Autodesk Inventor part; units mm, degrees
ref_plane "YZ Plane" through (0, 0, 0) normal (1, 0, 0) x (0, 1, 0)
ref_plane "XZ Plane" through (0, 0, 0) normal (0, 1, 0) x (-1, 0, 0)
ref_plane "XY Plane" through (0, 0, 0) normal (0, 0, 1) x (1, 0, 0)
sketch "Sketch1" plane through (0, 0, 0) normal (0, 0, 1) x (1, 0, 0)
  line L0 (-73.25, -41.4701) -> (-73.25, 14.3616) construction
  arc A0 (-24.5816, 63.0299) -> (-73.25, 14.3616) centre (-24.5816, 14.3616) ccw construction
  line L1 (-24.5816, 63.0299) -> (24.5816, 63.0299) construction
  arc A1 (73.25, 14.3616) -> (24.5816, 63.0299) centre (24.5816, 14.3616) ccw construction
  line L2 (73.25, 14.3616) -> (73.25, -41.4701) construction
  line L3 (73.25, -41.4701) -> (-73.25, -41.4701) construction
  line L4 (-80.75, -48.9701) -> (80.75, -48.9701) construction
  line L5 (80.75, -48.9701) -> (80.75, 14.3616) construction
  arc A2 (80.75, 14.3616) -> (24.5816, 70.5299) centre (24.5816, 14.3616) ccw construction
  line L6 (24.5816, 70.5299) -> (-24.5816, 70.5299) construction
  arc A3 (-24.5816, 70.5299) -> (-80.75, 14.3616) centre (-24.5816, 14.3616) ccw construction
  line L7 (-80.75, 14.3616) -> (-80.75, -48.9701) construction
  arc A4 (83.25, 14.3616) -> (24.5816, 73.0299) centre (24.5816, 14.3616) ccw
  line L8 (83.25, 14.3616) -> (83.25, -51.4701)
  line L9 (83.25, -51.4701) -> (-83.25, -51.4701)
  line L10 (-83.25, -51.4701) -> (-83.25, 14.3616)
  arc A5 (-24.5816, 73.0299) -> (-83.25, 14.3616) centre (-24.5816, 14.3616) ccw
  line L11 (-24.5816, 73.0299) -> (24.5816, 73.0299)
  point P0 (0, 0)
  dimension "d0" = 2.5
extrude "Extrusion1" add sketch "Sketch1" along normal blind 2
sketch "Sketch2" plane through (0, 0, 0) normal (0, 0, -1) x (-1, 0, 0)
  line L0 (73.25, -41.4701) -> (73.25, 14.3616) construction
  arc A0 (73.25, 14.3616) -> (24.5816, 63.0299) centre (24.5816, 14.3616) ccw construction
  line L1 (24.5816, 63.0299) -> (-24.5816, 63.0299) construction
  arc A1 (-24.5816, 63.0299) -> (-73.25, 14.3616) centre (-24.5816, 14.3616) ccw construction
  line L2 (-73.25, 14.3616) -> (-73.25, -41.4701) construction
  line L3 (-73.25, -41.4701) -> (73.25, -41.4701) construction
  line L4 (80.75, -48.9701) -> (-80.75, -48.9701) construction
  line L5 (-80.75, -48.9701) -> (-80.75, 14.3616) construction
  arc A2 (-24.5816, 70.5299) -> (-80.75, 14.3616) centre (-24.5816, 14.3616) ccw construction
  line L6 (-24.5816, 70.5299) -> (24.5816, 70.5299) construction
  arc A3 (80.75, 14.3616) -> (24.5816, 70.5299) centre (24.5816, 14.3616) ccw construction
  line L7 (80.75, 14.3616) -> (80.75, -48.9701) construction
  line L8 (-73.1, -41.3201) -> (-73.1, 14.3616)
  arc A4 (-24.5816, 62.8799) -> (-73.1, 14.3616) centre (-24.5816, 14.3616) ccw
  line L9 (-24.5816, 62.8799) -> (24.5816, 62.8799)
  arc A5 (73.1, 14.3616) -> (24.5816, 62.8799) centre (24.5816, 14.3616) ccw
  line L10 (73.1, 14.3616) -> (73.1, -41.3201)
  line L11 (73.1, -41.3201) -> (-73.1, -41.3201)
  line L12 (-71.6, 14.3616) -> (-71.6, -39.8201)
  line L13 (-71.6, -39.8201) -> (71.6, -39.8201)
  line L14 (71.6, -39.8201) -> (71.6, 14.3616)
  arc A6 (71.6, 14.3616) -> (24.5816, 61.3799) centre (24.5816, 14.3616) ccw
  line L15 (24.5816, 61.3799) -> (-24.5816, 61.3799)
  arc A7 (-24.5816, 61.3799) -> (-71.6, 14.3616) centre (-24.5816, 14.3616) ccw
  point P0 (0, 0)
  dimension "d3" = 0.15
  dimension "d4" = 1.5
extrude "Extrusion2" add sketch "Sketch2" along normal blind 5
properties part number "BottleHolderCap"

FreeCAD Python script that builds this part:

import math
import FreeCAD as App
import Part
import Sketcher

doc = App.newDocument("Part")
params = doc.addObject("Spreadsheet::Sheet", "Params")
for row, (alias, value) in enumerate([
    ("sketch1_width", "166.5 mm"),
    ("pad1_length", "2 mm"),
    ("sketch2_width", "146.2 mm"),
    ("pad2_length", "5 mm"),
], start=1):
    params.set(f"A{row}", alias)
    params.set(f"B{row}", "=" + value)
    params.setAlias(f"B{row}", alias)

body = doc.addObject("PartDesign::Body", "Body")

sketch1 = body.newObject("Sketcher::SketchObject", "Sketch")
sketch1.AttachmentSupport = (doc.getObject("XY_Plane"), [""])
sketch1.MapMode = "FlatFace"
sketch1.addGeometry(Part.LineSegment(App.Vector(83, -51, 0), App.Vector(83, 14, 0)), False)
sketch1.addGeometry(Part.ArcOfCircle(Part.Circle(App.Vector(25, 14, 0), App.Vector(0, 0, 1), 59), math.radians(0), math.radians(90)), False)
sketch1.addGeometry(Part.LineSegment(App.Vector(25, 73, 0), App.Vector(-25, 73, 0)), False)
sketch1.addGeometry(Part.ArcOfCircle(Part.Circle(App.Vector(-25, 14, 0), App.Vector(0, 0, 1), 59), math.radians(90), math.radians(180)), False)
sketch1.addGeometry(Part.LineSegment(App.Vector(-83, 14, 0), App.Vector(-83, -51, 0)), False)
sketch1.addGeometry(Part.LineSegment(App.Vector(-83, -51, 0), App.Vector(83, -51, 0)), False)
sketch1.addConstraint(Sketcher.Constraint("Tangent", 0, 2, 1, 1))
sketch1.addConstraint(Sketcher.Constraint("Tangent", 1, 2, 2, 1))
sketch1.addConstraint(Sketcher.Constraint("Tangent", 2, 2, 3, 1))
sketch1.addConstraint(Sketcher.Constraint("Tangent", 3, 2, 4, 1))
sketch1.addConstraint(Sketcher.Constraint("Coincident", 4, 2, 5, 1))
sketch1.addConstraint(Sketcher.Constraint("Coincident", 5, 2, 0, 1))
sketch1.addConstraint(Sketcher.Constraint("Vertical", 0))
sketch1.addConstraint(Sketcher.Constraint("Horizontal", 2))
sketch1.addConstraint(Sketcher.Constraint("Vertical", 4))
sketch1.addConstraint(Sketcher.Constraint("Horizontal", 5))
sketch1.addConstraint(Sketcher.Constraint("Equal", 1, 3))
sketch1.addConstraint(Sketcher.Constraint("DistanceX", 5, 1, 5, 2, 166.5))
sketch1.addConstraint(Sketcher.Constraint("Radius", 1, 58.6684))
sketch1.addConstraint(Sketcher.Constraint("DistanceY", 4, 2, 2, 2, 124.5))
sketch1.addConstraint(Sketcher.Constraint("DistanceX", -1, 1, 0, 2, 83.25))
sketch1.addConstraint(Sketcher.Constraint("DistanceY", -1, 1, 1, 2, 73.03))
sketch1.setExpression("Constraints[11]", "Params.sketch1_width")
pad1 = body.newObject("PartDesign::Pad", "Pad")
pad1.Profile = sketch1
pad1.setExpression("Length", "Params.pad1_length")

sketch2 = body.newObject("Sketcher::SketchObject", "Sketch001")
sketch2.AttachmentSupport = (doc.getObject("XY_Plane"), [""])
sketch2.MapMode = "FlatFace"
sketch2.addGeometry(Part.LineSegment(App.Vector(73, 14, 0), App.Vector(73, -41, 0)), False)
sketch2.addGeometry(Part.LineSegment(App.Vector(73, -41, 0), App.Vector(-73, -41, 0)), False)
sketch2.addGeometry(Part.LineSegment(App.Vector(-73, -41, 0), App.Vector(-73, 14, 0)), False)
sketch2.addGeometry(Part.ArcOfCircle(Part.Circle(App.Vector(-25, 14, 0), App.Vector(0, 0, 1), 49), math.radians(90), math.radians(180)), False)
sketch2.addGeometry(Part.LineSegment(App.Vector(-25, 63, 0), App.Vector(25, 63, 0)), False)
sketch2.addGeometry(Part.ArcOfCircle(Part.Circle(App.Vector(25, 14, 0), App.Vector(0, 0, 1), 49), math.radians(0), math.radians(90)), False)
sketch2.addGeometry(Part.LineSegment(App.Vector(72, -40, 0), App.Vector(72, 14, 0)), False)
sketch2.addGeometry(Part.ArcOfCircle(Part.Circle(App.Vector(25, 14, 0), App.Vector(0, 0, 1), 47), math.radians(0), math.radians(90)), False)
sketch2.addGeometry(Part.LineSegment(App.Vector(25, 61, 0), App.Vector(-25, 61, 0)), False)
sketch2.addGeometry(Part.ArcOfCircle(Part.Circle(App.Vector(-25, 14, 0), App.Vector(0, 0, 1), 47), math.radians(90), math.radians(180)), False)
sketch2.addGeometry(Part.LineSegment(App.Vector(-72, 14, 0), App.Vector(-72, -40, 0)), False)
sketch2.addGeometry(Part.LineSegment(App.Vector(-72, -40, 0), App.Vector(72, -40, 0)), False)
sketch2.addConstraint(Sketcher.Constraint("Coincident", 0, 2, 1, 1))
sketch2.addConstraint(Sketcher.Constraint("Coincident", 1, 2, 2, 1))
sketch2.addConstraint(Sketcher.Constraint("Tangent", 2, 2, 3, 2))
sketch2.addConstraint(Sketcher.Constraint("Tangent", 3, 1, 4, 1))
sketch2.addConstraint(Sketcher.Constraint("Tangent", 4, 2, 5, 2))
sketch2.addConstraint(Sketcher.Constraint("Tangent", 5, 1, 0, 1))
sketch2.addConstraint(Sketcher.Constraint("Tangent", 6, 2, 7, 1))
sketch2.addConstraint(Sketcher.Constraint("Tangent", 7, 2, 8, 1))
sketch2.addConstraint(Sketcher.Constraint("Tangent", 8, 2, 9, 1))
sketch2.addConstraint(Sketcher.Constraint("Tangent", 9, 2, 10, 1))
sketch2.addConstraint(Sketcher.Constraint("Coincident", 10, 2, 11, 1))
sketch2.addConstraint(Sketcher.Constraint("Coincident", 11, 2, 6, 1))
sketch2.addConstraint(Sketcher.Constraint("Vertical", 0))
sketch2.addConstraint(Sketcher.Constraint("Horizontal", 1))
sketch2.addConstraint(Sketcher.Constraint("Vertical", 2))
sketch2.addConstraint(Sketcher.Constraint("Horizontal", 4))
sketch2.addConstraint(Sketcher.Constraint("Vertical", 6))
sketch2.addConstraint(Sketcher.Constraint("Horizontal", 8))
sketch2.addConstraint(Sketcher.Constraint("Vertical", 10))
sketch2.addConstraint(Sketcher.Constraint("Horizontal", 11))
sketch2.addConstraint(Sketcher.Constraint("Coincident", 7, 3, 5, 3))
sketch2.addConstraint(Sketcher.Constraint("Coincident", 9, 3, 3, 3))
sketch2.addConstraint(Sketcher.Constraint("Equal", 3, 5))
sketch2.addConstraint(Sketcher.Constraint("DistanceX", 6, 2, 5, 1, 1.5))
sketch2.addConstraint(Sketcher.Constraint("DistanceY", 1, 2, 10, 2, 1.5))
sketch2.addConstraint(Sketcher.Constraint("DistanceX", 1, 2, 1, 1, 146.2))
sketch2.addConstraint(Sketcher.Constraint("DistanceX", -1, 1, 0, 2, 73.1))
sketch2.addConstraint(Sketcher.Constraint("Radius", 3, 48.5184))
sketch2.addConstraint(Sketcher.Constraint("DistanceY", 0, 2, -1, 1, 41.32))
sketch2.addConstraint(Sketcher.Constraint("DistanceY", -1, 1, 3, 1, 62.88))
sketch2.setExpression("Constraints[25]", "Params.sketch2_width")
pad2 = body.newObject("PartDesign::Pad", "Pad001")
pad2.Profile = sketch2
pad2.setExpression("Length", "Params.pad2_length")
pad2.Reversed = True

doc.recompute()
